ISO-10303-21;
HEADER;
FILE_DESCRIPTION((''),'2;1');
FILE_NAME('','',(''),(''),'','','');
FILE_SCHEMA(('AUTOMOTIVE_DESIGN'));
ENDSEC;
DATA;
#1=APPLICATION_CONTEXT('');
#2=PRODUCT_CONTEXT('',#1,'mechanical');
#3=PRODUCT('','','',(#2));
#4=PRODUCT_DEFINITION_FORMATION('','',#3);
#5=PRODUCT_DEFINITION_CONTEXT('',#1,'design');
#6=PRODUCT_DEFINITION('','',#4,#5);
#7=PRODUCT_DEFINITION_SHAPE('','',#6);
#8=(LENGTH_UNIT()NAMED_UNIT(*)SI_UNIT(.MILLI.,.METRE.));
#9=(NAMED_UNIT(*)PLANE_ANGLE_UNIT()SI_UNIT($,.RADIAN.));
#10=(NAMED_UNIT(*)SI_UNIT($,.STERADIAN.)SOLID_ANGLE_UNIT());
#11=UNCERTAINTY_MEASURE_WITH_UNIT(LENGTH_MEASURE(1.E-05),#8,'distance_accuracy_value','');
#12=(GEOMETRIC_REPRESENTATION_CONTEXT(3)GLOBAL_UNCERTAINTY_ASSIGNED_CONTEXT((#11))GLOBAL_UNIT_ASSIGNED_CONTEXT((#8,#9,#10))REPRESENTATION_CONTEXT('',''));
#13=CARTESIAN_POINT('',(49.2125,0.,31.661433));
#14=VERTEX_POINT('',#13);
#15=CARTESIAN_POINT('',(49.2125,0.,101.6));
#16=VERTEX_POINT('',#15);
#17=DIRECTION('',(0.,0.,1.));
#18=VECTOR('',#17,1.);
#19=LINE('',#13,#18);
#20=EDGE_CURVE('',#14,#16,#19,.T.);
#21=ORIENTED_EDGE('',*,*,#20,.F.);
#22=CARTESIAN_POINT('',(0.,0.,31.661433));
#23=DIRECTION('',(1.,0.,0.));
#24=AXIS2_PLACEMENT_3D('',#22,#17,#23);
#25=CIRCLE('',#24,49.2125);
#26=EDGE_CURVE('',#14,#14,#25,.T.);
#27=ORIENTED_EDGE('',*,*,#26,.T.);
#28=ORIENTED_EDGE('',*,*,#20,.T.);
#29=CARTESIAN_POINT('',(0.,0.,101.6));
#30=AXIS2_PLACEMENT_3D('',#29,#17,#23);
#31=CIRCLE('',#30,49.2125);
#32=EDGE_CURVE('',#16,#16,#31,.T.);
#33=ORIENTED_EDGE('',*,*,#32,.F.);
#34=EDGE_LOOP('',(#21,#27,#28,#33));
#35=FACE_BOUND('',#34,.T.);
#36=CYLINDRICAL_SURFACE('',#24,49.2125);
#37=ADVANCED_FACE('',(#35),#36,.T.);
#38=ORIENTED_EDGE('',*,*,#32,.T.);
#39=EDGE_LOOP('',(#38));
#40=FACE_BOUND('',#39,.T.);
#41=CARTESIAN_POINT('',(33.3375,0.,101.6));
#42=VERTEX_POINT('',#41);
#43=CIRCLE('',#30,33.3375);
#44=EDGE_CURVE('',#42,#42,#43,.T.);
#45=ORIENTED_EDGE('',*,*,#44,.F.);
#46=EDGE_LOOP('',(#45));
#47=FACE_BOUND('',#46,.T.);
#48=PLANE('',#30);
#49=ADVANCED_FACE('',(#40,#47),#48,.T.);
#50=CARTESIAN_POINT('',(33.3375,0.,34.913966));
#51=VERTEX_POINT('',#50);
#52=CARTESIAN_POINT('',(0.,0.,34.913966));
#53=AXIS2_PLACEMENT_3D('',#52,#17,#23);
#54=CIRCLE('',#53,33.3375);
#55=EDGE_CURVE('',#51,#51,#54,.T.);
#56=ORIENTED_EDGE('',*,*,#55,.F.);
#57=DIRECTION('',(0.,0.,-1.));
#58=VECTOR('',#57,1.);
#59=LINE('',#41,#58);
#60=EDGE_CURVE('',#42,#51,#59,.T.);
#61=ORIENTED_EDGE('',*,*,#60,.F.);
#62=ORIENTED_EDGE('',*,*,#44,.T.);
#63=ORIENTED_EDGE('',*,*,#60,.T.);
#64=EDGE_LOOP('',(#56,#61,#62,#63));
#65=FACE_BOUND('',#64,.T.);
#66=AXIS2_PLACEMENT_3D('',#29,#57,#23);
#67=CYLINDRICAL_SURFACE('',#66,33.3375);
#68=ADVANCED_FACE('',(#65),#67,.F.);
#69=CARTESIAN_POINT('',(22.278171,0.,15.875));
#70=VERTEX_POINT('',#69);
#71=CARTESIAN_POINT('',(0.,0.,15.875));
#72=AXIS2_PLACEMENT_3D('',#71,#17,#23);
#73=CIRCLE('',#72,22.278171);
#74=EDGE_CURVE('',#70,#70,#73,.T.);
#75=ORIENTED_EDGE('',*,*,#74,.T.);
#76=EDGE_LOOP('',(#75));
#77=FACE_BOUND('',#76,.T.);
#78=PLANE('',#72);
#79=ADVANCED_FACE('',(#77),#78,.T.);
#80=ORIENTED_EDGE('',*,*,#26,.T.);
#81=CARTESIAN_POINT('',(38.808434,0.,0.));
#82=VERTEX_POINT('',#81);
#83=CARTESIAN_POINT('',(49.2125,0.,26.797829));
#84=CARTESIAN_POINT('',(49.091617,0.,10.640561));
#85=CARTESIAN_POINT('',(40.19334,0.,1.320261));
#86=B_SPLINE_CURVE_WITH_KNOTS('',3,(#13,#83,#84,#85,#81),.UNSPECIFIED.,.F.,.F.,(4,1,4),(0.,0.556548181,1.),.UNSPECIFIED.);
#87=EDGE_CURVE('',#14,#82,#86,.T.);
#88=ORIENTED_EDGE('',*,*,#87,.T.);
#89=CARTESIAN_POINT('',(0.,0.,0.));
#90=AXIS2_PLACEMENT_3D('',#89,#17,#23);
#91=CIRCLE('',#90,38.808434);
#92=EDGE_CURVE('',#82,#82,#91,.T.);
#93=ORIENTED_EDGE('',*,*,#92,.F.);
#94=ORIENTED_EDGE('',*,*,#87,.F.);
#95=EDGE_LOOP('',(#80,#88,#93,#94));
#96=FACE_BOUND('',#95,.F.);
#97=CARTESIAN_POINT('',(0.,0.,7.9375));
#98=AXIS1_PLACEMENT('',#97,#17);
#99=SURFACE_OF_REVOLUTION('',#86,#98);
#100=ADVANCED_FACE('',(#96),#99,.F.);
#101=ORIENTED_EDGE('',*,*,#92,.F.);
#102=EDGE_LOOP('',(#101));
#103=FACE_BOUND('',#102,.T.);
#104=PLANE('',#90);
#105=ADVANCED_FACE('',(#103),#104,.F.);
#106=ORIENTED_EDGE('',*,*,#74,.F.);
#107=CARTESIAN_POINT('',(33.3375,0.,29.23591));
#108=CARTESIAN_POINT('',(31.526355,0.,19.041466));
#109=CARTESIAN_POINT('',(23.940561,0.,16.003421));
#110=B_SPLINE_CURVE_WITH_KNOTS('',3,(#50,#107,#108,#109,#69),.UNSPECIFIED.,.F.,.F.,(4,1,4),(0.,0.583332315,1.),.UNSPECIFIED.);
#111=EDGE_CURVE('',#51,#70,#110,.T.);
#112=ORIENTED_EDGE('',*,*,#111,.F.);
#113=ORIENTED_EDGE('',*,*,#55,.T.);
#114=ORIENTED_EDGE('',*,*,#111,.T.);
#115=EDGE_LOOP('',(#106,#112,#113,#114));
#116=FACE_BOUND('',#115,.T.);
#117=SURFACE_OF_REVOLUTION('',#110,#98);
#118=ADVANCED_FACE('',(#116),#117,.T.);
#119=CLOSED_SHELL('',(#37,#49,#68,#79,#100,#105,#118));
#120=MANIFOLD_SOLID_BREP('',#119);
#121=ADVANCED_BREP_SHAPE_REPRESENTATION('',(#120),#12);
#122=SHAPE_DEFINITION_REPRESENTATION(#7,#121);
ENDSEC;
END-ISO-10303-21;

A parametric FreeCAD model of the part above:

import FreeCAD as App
import Part
import Sketcher

V = App.Vector
Q = App.Units.Quantity

doc = App.newDocument("Part")
body = doc.addObject("PartDesign::Body", "Body")

# Sketch on XZ plane
sketch1 = doc.addObject("Sketcher::SketchObject", "Sketch")
body.addObject(sketch1)
sketch1.AttachmentSupport = (doc.XZ_Plane, [""])
sketch1.MapMode = "FlatFace"
sketch1.addGeometry([
    Part.LineSegment(V(0, 15.875, 0), V(0, 0, 0)),  # 0
    Part.LineSegment(V(0, 0, 0), V(38.808434, 0, 0)),  # 1
    Part.BSplineCurve([V(49.2125, 31.661433, 0), V(49.2125, 26.797829, 0), V(49.091617, 10.640561, 0), V(40.19334, 1.320261, 0), V(38.808434, 0, 0)], [4, 1, 4], [0, 0.556548181, 1], False, 3, [1, 1, 1, 1, 1], False),  # 2
    Part.LineSegment(V(49.2125, 31.661433, 0), V(49.2125, 101.6, 0)),  # 3
    Part.LineSegment(V(49.2125, 101.6, 0), V(33.3375, 101.6, 0)),  # 4
    Part.LineSegment(V(33.3375, 101.6, 0), V(33.3375, 34.913966, 0)),  # 5
    Part.BSplineCurve([V(33.3375, 34.913966, 0), V(33.3375, 29.23591, 0), V(31.526355, 19.041466, 0), V(23.940561, 16.003421, 0), V(22.278171, 15.875, 0)], [4, 1, 4], [0, 0.583332315, 1], False, 3, [1, 1, 1, 1, 1], False),  # 6
    Part.LineSegment(V(22.278171, 15.875, 0), V(0, 15.875, 0)),  # 7
], False)
sketch1.addConstraint([
    Sketcher.Constraint("Block", 2),
    Sketcher.Constraint("Block", 6),
    Sketcher.Constraint("Coincident", 0, 2, 1, 1),
    Sketcher.Constraint("Coincident", 1, 2, 2, 2),
    Sketcher.Constraint("Coincident", 2, 1, 3, 1),
    Sketcher.Constraint("Coincident", 3, 2, 4, 1),
    Sketcher.Constraint("Coincident", 4, 2, 5, 1),
    Sketcher.Constraint("Coincident", 5, 2, 6, 1),
    Sketcher.Constraint("Coincident", 6, 2, 7, 1),
    Sketcher.Constraint("Coincident", 7, 2, 0, 1),
    Sketcher.Constraint("Vertical", 0),
    Sketcher.Constraint("Horizontal", 1),
    Sketcher.Constraint("Vertical", 3),
    Sketcher.Constraint("Horizontal", 4),
    Sketcher.Constraint("Vertical", 5),
    Sketcher.Constraint("Horizontal", 7),
    Sketcher.Constraint("PointOnObject", 7, 2, -2),
    Sketcher.Constraint("DistanceY", -1, 1, 3, 2, Q("4 in")),
])
revolution = doc.addObject("PartDesign::Revolution", "Revolution")
body.addObject(revolution)
revolution.Profile = sketch1
revolution.ReferenceAxis = (sketch1, ["V_Axis"])
revolution.Angle = 360

doc.recompute()
